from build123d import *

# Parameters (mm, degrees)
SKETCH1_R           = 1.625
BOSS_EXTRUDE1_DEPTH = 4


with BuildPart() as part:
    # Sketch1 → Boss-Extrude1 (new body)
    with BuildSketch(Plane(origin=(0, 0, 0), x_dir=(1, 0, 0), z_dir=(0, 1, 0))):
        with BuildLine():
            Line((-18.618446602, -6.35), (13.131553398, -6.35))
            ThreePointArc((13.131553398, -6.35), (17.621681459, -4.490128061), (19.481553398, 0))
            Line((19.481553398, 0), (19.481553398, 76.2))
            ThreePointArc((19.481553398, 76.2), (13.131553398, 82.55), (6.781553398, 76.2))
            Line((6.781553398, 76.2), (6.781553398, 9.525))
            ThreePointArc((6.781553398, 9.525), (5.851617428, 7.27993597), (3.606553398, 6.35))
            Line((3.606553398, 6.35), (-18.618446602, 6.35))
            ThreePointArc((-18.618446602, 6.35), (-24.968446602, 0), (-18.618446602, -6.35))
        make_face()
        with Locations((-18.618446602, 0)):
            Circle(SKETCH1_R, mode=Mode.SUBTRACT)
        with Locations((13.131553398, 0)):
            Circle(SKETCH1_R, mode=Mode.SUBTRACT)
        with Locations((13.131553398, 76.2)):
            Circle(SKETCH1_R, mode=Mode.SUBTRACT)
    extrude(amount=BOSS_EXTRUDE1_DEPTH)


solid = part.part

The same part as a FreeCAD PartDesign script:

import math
import FreeCAD as App
import Part
import Sketcher
Q = App.Units.Quantity

doc = App.newDocument("Part")
body = doc.addObject("PartDesign::Body", "Body")

sketch1 = body.newObject("Sketcher::SketchObject", "Sketch")
sketch1.AttachmentSupport = (doc.getObject("XZ_Plane"), [""])
sketch1.MapMode = "FlatFace"
sketch1.addGeometry([
    Part.LineSegment(App.Vector(-18.6, 6.3, 0), App.Vector(13.1, 6.3, 0)),
    Part.ArcOfCircle(Part.Circle(App.Vector(13.1, 0, 0), App.Vector(0, 0, 1), 6.3), math.radians(0), math.radians(90)),
    Part.LineSegment(App.Vector(19.5, 0, 0), App.Vector(19.5, -76.2, 0)),
    Part.ArcOfCircle(Part.Circle(App.Vector(13.1, -76.2, 0), App.Vector(0, 0, 1), 6.3), math.radians(180), math.radians(360)),
    Part.LineSegment(App.Vector(6.8, -76.2, 0), App.Vector(6.8, -9.5, 0)),
    Part.ArcOfCircle(Part.Circle(App.Vector(3.6, -9.5, 0), App.Vector(0, 0, 1), 3.2), math.radians(0), math.radians(90)),
    Part.LineSegment(App.Vector(3.6, -6.3, 0), App.Vector(-18.6, -6.3, 0)),
    Part.ArcOfCircle(Part.Circle(App.Vector(-18.6, 0, 0), App.Vector(0, 0, 1), 6.3), math.radians(90), math.radians(270)),
    Part.Circle(App.Vector(-18.6, 0, 0), App.Vector(0, 0, 1), 1.6),
    Part.Circle(App.Vector(13.1, 0, 0), App.Vector(0, 0, 1), 1.6),
    Part.Circle(App.Vector(13.1, -76.2, 0), App.Vector(0, 0, 1), 1.6),
], False)
sketch1.addConstraint([
    Sketcher.Constraint("Tangent", 0, 2, 1, 2),
    Sketcher.Constraint("Tangent", 1, 1, 2, 1),
    Sketcher.Constraint("Tangent", 2, 2, 3, 2),
    Sketcher.Constraint("Tangent", 3, 1, 4, 1),
    Sketcher.Constraint("Tangent", 4, 2, 5, 1),
    Sketcher.Constraint("Tangent", 5, 2, 6, 1),
    Sketcher.Constraint("Tangent", 6, 2, 7, 2),
    Sketcher.Constraint("Tangent", 7, 1, 0, 1),
    Sketcher.Constraint("Horizontal", 0),
    Sketcher.Constraint("Vertical", 2),
    Sketcher.Constraint("Vertical", 4),
    Sketcher.Constraint("Horizontal", 6),
    Sketcher.Constraint("Coincident", 8, 3, 7, 3),
    Sketcher.Constraint("Coincident", 9, 3, 1, 3),
    Sketcher.Constraint("Coincident", 10, 3, 3, 3),
    Sketcher.Constraint("Equal", 1, 3),
    Sketcher.Constraint("Equal", 3, 7),
    Sketcher.Constraint("Equal", 8, 9),
    Sketcher.Constraint("Equal", 9, 10),
    Sketcher.Constraint("PointOnObject", 1, 3, -1),
    Sketcher.Constraint("DistanceY", 2, 2, 2, 1, Q("3 in")),
    Sketcher.Constraint("Radius", 1, Q("0.25 in")),
    Sketcher.Constraint("Radius", 5, Q("0.125 in")),
    Sketcher.Constraint("DistanceX", 6, 2, 4, 2, Q("1 in")),
    Sketcher.Constraint("Diameter", 8, 3.25),
    Sketcher.Constraint("DistanceX", -1, 1, 1, 3, 13.131553),
])
pad1 = body.newObject("PartDesign::Pad", "Pad")
pad1.Profile = sketch1
pad1.Length = 4
pad1.Reversed = True

doc.recompute()
